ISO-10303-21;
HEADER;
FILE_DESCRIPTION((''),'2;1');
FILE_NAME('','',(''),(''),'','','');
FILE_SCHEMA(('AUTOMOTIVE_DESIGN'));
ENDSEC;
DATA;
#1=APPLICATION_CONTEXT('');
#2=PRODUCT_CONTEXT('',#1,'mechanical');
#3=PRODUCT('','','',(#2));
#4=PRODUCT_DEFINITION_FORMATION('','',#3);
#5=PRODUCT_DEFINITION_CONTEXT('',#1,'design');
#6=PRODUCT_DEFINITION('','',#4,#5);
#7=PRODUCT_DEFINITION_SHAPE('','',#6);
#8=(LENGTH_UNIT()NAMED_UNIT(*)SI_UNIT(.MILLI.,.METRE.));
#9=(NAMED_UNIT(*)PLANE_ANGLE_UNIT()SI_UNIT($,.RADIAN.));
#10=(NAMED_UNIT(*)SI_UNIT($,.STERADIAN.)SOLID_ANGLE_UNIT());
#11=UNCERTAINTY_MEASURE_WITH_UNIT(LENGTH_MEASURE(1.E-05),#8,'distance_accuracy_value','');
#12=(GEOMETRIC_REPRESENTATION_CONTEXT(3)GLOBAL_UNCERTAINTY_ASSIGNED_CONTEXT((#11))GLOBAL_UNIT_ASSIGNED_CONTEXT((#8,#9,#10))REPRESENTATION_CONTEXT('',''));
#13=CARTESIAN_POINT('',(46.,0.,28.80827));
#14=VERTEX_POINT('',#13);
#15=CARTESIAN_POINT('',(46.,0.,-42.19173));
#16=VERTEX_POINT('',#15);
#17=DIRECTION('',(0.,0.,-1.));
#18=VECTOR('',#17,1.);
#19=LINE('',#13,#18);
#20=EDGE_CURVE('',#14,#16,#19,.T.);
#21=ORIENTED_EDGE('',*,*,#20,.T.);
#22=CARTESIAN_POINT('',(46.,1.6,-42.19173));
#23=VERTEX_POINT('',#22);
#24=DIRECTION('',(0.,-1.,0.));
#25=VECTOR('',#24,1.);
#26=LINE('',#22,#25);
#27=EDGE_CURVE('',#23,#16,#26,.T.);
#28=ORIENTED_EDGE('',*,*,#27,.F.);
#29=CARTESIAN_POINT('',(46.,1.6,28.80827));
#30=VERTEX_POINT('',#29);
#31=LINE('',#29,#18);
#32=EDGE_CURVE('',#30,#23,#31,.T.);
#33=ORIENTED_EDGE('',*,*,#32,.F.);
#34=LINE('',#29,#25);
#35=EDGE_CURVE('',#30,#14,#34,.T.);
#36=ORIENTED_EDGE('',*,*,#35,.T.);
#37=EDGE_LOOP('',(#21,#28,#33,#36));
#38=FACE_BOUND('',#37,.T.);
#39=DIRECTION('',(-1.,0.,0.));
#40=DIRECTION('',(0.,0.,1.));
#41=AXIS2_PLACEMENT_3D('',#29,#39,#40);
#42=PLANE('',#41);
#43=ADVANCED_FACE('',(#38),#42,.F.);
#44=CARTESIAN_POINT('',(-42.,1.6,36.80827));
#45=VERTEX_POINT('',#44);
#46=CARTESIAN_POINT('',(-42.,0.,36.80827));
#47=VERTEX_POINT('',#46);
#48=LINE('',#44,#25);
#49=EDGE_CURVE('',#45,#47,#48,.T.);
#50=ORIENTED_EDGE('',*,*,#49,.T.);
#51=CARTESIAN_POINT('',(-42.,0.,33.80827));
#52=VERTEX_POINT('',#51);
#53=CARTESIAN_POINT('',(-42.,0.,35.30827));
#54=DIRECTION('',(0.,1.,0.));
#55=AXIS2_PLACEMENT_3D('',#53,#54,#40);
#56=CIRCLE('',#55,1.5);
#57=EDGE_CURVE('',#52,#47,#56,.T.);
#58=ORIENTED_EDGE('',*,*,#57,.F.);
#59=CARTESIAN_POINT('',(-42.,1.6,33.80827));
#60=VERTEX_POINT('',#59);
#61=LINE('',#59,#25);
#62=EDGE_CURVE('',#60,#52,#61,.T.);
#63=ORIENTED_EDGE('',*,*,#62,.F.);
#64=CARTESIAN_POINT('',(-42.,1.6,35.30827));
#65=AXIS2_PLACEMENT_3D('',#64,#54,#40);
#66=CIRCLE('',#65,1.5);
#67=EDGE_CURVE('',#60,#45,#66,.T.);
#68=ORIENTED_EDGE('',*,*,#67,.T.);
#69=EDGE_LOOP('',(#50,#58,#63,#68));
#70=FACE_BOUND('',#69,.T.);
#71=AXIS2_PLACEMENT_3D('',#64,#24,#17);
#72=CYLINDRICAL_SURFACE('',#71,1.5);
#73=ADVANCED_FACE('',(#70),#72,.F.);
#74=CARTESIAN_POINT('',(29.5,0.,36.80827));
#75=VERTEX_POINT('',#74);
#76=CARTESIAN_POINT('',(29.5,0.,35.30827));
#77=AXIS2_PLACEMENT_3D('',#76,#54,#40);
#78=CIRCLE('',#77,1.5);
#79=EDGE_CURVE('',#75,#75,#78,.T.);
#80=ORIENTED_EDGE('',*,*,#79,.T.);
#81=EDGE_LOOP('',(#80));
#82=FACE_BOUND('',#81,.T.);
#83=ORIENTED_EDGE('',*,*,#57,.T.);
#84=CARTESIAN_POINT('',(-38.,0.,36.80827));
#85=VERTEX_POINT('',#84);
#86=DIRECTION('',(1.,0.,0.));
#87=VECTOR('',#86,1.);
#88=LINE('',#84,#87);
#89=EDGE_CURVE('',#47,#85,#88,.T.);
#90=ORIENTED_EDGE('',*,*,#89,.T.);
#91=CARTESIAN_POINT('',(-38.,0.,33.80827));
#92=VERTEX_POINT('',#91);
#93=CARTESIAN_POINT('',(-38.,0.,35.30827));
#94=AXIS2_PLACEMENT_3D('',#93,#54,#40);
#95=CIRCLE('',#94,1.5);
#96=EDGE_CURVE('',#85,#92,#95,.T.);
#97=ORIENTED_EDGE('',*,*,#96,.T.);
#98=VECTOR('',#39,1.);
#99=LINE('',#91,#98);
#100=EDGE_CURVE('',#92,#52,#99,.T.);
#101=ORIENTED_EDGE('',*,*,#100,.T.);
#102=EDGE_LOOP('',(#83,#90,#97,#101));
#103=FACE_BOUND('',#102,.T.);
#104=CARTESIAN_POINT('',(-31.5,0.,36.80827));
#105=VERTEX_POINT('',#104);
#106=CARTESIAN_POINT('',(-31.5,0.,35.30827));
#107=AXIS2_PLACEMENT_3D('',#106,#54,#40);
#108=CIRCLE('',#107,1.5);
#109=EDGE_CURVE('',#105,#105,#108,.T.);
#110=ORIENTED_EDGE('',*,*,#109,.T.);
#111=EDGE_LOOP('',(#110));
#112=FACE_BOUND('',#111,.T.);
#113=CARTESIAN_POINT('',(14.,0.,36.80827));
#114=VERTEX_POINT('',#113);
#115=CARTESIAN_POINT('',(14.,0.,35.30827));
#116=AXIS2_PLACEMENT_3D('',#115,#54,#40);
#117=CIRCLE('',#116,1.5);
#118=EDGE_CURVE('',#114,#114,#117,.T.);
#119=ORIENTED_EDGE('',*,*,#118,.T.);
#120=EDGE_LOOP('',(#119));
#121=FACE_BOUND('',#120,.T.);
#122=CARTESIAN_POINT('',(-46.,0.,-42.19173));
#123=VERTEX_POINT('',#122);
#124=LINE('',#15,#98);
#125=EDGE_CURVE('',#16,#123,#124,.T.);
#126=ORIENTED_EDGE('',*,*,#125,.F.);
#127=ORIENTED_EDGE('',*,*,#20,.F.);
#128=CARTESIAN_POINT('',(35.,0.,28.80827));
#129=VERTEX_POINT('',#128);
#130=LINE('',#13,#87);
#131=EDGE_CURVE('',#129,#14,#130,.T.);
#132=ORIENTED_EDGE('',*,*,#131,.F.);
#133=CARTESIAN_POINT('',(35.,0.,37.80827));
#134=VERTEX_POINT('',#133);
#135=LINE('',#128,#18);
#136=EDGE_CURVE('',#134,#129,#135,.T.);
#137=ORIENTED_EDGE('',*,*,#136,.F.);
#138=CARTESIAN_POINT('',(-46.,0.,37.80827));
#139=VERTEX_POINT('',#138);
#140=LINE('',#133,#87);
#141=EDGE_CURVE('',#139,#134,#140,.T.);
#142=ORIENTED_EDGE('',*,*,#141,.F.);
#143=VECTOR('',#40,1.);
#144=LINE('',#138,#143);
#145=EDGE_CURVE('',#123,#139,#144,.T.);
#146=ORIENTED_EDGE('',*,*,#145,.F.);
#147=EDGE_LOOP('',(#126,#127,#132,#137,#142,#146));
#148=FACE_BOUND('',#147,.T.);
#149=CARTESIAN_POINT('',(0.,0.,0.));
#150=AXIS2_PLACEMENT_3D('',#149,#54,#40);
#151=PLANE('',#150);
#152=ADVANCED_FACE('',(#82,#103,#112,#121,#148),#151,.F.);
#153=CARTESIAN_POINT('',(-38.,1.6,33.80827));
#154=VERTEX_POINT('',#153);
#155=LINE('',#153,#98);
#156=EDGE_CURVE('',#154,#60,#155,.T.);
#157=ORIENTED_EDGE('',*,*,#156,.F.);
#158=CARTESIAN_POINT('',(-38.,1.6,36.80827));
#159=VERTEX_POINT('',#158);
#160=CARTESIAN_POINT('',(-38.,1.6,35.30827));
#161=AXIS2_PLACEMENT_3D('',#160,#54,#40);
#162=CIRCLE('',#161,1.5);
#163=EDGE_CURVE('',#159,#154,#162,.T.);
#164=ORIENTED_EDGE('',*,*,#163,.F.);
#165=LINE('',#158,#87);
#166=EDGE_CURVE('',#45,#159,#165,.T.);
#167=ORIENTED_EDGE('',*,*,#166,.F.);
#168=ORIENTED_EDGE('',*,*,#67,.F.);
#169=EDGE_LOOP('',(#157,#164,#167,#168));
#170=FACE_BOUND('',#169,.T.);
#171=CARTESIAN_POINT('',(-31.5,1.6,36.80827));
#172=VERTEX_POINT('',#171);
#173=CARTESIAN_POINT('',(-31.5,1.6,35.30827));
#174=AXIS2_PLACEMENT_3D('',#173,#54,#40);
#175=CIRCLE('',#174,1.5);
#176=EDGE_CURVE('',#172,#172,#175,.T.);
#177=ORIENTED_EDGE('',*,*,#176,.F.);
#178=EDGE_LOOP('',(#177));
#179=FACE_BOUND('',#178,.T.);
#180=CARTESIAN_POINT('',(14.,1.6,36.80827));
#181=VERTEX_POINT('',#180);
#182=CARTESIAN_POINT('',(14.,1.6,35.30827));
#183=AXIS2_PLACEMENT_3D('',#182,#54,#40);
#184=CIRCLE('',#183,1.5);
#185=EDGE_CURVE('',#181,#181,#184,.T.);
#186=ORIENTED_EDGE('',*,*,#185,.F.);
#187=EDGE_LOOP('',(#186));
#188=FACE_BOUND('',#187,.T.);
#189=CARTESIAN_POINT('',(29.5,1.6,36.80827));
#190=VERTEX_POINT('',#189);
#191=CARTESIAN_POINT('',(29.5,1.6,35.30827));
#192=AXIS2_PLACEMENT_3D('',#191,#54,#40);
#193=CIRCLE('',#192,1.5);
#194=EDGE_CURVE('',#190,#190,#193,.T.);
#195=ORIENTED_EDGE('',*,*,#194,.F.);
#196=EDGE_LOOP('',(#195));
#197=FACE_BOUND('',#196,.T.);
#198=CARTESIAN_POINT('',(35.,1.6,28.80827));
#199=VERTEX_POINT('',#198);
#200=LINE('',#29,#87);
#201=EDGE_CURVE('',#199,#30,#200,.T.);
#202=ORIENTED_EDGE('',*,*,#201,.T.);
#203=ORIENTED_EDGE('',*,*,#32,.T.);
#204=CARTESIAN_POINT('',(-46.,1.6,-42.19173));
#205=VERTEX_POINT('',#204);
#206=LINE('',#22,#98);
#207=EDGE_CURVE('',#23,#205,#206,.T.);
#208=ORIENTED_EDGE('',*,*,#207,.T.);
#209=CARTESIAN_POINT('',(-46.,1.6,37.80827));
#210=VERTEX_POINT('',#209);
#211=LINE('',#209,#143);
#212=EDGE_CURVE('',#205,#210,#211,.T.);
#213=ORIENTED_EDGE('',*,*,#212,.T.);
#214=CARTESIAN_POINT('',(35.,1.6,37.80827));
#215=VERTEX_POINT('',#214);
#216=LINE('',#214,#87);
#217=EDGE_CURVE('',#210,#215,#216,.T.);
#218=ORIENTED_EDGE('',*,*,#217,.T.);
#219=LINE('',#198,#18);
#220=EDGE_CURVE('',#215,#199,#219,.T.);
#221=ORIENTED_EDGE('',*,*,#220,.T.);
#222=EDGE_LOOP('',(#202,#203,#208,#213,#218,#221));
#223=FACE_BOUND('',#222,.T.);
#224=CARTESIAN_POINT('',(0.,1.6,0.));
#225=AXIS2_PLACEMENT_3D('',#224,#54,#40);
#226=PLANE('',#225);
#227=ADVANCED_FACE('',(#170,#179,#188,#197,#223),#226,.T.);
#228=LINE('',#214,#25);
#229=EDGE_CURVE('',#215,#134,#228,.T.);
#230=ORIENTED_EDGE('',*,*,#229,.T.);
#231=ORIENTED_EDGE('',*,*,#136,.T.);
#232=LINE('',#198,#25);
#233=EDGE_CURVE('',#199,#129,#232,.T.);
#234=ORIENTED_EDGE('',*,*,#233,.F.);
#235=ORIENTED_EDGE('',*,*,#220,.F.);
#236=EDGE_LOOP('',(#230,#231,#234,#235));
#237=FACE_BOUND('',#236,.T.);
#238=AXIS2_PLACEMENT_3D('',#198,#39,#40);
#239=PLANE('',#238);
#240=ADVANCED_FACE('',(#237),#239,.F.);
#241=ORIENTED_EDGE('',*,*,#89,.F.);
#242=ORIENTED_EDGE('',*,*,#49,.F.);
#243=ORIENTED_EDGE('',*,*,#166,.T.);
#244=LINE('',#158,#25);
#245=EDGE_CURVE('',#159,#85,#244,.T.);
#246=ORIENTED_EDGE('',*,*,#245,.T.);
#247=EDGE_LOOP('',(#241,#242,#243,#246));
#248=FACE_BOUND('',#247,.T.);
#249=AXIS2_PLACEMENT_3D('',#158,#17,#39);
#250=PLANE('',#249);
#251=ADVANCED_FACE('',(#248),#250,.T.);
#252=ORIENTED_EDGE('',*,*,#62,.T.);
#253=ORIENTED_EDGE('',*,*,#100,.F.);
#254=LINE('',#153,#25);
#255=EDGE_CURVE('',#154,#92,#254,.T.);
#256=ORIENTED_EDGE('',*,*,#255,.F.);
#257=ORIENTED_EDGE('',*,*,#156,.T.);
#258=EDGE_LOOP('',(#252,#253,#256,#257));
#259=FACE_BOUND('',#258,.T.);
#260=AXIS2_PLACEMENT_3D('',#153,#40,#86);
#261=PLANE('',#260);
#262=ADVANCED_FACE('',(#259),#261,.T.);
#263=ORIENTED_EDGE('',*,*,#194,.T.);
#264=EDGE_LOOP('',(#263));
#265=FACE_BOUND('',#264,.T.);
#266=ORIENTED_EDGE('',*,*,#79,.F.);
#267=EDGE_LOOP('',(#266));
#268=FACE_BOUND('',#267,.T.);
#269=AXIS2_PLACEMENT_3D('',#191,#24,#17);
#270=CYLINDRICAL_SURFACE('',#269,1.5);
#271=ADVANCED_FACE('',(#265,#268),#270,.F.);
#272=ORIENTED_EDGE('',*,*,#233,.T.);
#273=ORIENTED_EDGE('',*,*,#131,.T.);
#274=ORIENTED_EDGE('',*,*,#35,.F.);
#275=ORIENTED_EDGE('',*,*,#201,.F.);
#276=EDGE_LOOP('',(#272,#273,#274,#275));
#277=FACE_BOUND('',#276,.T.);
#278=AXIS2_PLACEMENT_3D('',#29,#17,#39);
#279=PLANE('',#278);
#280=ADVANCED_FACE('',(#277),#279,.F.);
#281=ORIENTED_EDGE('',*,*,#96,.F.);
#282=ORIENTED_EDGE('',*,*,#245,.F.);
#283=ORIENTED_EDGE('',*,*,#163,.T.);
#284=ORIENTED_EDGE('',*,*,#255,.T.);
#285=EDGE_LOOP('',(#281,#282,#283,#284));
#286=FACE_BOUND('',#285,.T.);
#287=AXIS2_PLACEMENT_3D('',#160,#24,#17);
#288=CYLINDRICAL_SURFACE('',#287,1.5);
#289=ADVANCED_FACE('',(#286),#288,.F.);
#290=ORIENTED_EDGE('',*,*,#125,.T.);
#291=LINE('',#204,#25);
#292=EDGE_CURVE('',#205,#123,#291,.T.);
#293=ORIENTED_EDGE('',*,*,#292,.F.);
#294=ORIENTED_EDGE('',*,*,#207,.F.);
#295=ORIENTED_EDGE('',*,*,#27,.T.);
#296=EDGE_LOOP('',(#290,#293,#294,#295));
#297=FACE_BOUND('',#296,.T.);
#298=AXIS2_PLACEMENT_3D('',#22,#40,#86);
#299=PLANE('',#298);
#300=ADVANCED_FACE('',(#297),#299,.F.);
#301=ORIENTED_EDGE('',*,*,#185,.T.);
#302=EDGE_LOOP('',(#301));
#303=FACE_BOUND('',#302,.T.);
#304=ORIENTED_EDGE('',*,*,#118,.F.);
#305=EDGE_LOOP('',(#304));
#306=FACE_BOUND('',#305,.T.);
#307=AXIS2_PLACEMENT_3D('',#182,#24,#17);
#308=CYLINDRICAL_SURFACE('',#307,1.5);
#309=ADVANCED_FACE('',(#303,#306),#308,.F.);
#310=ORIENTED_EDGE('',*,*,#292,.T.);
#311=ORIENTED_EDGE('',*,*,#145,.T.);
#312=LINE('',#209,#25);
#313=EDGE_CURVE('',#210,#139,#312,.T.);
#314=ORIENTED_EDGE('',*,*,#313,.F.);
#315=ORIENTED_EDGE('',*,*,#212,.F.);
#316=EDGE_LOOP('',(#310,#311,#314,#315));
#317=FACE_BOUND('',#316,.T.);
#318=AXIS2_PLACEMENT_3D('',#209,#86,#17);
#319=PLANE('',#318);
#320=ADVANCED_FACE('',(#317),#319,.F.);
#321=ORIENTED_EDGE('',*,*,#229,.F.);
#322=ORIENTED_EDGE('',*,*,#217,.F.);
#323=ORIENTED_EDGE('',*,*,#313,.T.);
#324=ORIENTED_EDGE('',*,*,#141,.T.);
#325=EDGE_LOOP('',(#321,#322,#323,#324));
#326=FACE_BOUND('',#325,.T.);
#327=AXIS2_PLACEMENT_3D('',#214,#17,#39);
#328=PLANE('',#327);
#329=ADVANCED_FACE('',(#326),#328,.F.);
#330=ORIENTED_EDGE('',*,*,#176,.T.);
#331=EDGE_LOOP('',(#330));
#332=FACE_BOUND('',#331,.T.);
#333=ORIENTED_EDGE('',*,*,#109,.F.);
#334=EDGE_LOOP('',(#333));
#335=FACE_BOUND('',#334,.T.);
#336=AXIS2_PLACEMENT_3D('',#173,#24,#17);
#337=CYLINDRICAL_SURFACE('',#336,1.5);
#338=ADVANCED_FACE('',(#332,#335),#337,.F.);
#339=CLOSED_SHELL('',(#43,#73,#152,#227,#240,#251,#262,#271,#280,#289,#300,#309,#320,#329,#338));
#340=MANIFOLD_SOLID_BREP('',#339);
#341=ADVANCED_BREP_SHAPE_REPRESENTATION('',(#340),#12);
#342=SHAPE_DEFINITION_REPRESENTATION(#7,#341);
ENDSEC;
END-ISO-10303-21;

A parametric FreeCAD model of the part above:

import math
import FreeCAD as App
import Part
import Sketcher


def add_polygon(sketch, points):
    """Adds a closed chain of lines whose ends are joined by coincident constraints."""
    first, n = sketch.GeometryCount, len(points)
    for a, b in zip(points, points[1:] + points[:1]):
        sketch.addGeometry(Part.LineSegment(App.Vector(*a, 0), App.Vector(*b, 0)), False)
    for i in range(n):
        sketch.addConstraint(Sketcher.Constraint("Coincident", first + i, 2, first + (i + 1) % n, 1))

doc = App.newDocument("Part")
body = doc.addObject("PartDesign::Body", "Body")

# Sketch on XZ plane
sketch1 = body.newObject("Sketcher::SketchObject", "Sketch")
sketch1.AttachmentSupport = (doc.getObject("XZ_Plane"), [""])
sketch1.MapMode = "FlatFace"
add_polygon(sketch1, [(35, 28.8), (46, 28.8), (46, -42.2), (-46, -42.2), (-46, 37.8), (35, 37.8)])  # lines 0-5
sketch1.addGeometry(Part.Circle(App.Vector(29.5, 35.3, 0), App.Vector(0, 0, 1), 1.5), False)  # 6
sketch1.addGeometry(Part.Circle(App.Vector(14, 35.3, 0), App.Vector(0, 0, 1), 1.5), False)  # 7
sketch1.addGeometry(Part.Circle(App.Vector(-31.5, 35.3, 0), App.Vector(0, 0, 1), 1.5), False)  # 8
sketch1.addGeometry(Part.LineSegment(App.Vector(-38, 36.8, 0), App.Vector(-42, 36.8, 0)), False)  # 9
sketch1.addGeometry(Part.ArcOfCircle(Part.Circle(App.Vector(-42, 35.3, 0), App.Vector(0, 0, 1), 1.5), math.radians(90), math.radians(270)), False)  # 10
sketch1.addGeometry(Part.LineSegment(App.Vector(-42, 33.8, 0), App.Vector(-38, 33.8, 0)), False)  # 11
sketch1.addGeometry(Part.ArcOfCircle(Part.Circle(App.Vector(-38, 35.3, 0), App.Vector(0, 0, 1), 1.5), math.radians(-90), math.radians(90)), False)  # 12
sketch1.addConstraint(Sketcher.Constraint("Tangent", 9, 2, 10, 1))
sketch1.addConstraint(Sketcher.Constraint("Tangent", 10, 2, 11, 1))
sketch1.addConstraint(Sketcher.Constraint("Tangent", 11, 2, 12, 1))
sketch1.addConstraint(Sketcher.Constraint("Tangent", 12, 2, 9, 1))
sketch1.addConstraint(Sketcher.Constraint("Horizontal", 0))
sketch1.addConstraint(Sketcher.Constraint("Vertical", 1))
sketch1.addConstraint(Sketcher.Constraint("Horizontal", 2))
sketch1.addConstraint(Sketcher.Constraint("Vertical", 3))
sketch1.addConstraint(Sketcher.Constraint("Horizontal", 4))
sketch1.addConstraint(Sketcher.Constraint("Vertical", 5))
sketch1.addConstraint(Sketcher.Constraint("Horizontal", 9))
sketch1.addConstraint(Sketcher.Constraint("Horizontal", 11))
sketch1.addConstraint(Sketcher.Constraint("Equal", 6, 7))
sketch1.addConstraint(Sketcher.Constraint("Equal", 7, 8))
sketch1.addConstraint(Sketcher.Constraint("Equal", 8, 10))
sketch1.addConstraint(Sketcher.Constraint("Horizontal", 6, 3, 7, 3))
sketch1.addConstraint(Sketcher.Constraint("Horizontal", 7, 3, 8, 3))
sketch1.addConstraint(Sketcher.Constraint("Horizontal", 8, 3, 10, 3))
sketch1.addConstraint(Sketcher.Constraint("Diameter", 6, 3.0))
sketch1.addConstraint(Sketcher.Constraint("DistanceX", 0, 1, 0, 2, 11.0))
sketch1.addConstraint(Sketcher.Constraint("DistanceX", 2, 2, 2, 1, 92.0))
sketch1.addConstraint(Sketcher.Constraint("DistanceX", 9, 2, 9, 1, 4.0))
sketch1.addConstraint(Sketcher.Constraint("DistanceY", 1, 2, 1, 1, 71.0))
sketch1.addConstraint(Sketcher.Constraint("DistanceY", 3, 1, 3, 2, 80.0))
sketch1.addConstraint(Sketcher.Constraint("DistanceX", -1, 1, 7, 3, 14.0))
sketch1.addConstraint(Sketcher.Constraint("DistanceX", 10, 3, -1, 1, 42.0))
sketch1.addConstraint(Sketcher.Constraint("DistanceX", -1, 1, 0, 2, 46.0))
sketch1.addConstraint(Sketcher.Constraint("DistanceX", 8, 3, 6, 3, 61.0))
sketch1.addConstraint(Sketcher.Constraint("DistanceY", 9, 2, 3, 2, 1.0))
sketch1.addConstraint(Sketcher.Constraint("DistanceX", -1, 1, 6, 3, 29.5))
sketch1.addConstraint(Sketcher.Constraint("DistanceY", -1, 1, 6, 3, 35.30827))
pad1 = body.newObject("PartDesign::Pad", "Pad")
pad1.Profile = sketch1
pad1.Length = 1.6
pad1.Reversed = True

doc.recompute()
